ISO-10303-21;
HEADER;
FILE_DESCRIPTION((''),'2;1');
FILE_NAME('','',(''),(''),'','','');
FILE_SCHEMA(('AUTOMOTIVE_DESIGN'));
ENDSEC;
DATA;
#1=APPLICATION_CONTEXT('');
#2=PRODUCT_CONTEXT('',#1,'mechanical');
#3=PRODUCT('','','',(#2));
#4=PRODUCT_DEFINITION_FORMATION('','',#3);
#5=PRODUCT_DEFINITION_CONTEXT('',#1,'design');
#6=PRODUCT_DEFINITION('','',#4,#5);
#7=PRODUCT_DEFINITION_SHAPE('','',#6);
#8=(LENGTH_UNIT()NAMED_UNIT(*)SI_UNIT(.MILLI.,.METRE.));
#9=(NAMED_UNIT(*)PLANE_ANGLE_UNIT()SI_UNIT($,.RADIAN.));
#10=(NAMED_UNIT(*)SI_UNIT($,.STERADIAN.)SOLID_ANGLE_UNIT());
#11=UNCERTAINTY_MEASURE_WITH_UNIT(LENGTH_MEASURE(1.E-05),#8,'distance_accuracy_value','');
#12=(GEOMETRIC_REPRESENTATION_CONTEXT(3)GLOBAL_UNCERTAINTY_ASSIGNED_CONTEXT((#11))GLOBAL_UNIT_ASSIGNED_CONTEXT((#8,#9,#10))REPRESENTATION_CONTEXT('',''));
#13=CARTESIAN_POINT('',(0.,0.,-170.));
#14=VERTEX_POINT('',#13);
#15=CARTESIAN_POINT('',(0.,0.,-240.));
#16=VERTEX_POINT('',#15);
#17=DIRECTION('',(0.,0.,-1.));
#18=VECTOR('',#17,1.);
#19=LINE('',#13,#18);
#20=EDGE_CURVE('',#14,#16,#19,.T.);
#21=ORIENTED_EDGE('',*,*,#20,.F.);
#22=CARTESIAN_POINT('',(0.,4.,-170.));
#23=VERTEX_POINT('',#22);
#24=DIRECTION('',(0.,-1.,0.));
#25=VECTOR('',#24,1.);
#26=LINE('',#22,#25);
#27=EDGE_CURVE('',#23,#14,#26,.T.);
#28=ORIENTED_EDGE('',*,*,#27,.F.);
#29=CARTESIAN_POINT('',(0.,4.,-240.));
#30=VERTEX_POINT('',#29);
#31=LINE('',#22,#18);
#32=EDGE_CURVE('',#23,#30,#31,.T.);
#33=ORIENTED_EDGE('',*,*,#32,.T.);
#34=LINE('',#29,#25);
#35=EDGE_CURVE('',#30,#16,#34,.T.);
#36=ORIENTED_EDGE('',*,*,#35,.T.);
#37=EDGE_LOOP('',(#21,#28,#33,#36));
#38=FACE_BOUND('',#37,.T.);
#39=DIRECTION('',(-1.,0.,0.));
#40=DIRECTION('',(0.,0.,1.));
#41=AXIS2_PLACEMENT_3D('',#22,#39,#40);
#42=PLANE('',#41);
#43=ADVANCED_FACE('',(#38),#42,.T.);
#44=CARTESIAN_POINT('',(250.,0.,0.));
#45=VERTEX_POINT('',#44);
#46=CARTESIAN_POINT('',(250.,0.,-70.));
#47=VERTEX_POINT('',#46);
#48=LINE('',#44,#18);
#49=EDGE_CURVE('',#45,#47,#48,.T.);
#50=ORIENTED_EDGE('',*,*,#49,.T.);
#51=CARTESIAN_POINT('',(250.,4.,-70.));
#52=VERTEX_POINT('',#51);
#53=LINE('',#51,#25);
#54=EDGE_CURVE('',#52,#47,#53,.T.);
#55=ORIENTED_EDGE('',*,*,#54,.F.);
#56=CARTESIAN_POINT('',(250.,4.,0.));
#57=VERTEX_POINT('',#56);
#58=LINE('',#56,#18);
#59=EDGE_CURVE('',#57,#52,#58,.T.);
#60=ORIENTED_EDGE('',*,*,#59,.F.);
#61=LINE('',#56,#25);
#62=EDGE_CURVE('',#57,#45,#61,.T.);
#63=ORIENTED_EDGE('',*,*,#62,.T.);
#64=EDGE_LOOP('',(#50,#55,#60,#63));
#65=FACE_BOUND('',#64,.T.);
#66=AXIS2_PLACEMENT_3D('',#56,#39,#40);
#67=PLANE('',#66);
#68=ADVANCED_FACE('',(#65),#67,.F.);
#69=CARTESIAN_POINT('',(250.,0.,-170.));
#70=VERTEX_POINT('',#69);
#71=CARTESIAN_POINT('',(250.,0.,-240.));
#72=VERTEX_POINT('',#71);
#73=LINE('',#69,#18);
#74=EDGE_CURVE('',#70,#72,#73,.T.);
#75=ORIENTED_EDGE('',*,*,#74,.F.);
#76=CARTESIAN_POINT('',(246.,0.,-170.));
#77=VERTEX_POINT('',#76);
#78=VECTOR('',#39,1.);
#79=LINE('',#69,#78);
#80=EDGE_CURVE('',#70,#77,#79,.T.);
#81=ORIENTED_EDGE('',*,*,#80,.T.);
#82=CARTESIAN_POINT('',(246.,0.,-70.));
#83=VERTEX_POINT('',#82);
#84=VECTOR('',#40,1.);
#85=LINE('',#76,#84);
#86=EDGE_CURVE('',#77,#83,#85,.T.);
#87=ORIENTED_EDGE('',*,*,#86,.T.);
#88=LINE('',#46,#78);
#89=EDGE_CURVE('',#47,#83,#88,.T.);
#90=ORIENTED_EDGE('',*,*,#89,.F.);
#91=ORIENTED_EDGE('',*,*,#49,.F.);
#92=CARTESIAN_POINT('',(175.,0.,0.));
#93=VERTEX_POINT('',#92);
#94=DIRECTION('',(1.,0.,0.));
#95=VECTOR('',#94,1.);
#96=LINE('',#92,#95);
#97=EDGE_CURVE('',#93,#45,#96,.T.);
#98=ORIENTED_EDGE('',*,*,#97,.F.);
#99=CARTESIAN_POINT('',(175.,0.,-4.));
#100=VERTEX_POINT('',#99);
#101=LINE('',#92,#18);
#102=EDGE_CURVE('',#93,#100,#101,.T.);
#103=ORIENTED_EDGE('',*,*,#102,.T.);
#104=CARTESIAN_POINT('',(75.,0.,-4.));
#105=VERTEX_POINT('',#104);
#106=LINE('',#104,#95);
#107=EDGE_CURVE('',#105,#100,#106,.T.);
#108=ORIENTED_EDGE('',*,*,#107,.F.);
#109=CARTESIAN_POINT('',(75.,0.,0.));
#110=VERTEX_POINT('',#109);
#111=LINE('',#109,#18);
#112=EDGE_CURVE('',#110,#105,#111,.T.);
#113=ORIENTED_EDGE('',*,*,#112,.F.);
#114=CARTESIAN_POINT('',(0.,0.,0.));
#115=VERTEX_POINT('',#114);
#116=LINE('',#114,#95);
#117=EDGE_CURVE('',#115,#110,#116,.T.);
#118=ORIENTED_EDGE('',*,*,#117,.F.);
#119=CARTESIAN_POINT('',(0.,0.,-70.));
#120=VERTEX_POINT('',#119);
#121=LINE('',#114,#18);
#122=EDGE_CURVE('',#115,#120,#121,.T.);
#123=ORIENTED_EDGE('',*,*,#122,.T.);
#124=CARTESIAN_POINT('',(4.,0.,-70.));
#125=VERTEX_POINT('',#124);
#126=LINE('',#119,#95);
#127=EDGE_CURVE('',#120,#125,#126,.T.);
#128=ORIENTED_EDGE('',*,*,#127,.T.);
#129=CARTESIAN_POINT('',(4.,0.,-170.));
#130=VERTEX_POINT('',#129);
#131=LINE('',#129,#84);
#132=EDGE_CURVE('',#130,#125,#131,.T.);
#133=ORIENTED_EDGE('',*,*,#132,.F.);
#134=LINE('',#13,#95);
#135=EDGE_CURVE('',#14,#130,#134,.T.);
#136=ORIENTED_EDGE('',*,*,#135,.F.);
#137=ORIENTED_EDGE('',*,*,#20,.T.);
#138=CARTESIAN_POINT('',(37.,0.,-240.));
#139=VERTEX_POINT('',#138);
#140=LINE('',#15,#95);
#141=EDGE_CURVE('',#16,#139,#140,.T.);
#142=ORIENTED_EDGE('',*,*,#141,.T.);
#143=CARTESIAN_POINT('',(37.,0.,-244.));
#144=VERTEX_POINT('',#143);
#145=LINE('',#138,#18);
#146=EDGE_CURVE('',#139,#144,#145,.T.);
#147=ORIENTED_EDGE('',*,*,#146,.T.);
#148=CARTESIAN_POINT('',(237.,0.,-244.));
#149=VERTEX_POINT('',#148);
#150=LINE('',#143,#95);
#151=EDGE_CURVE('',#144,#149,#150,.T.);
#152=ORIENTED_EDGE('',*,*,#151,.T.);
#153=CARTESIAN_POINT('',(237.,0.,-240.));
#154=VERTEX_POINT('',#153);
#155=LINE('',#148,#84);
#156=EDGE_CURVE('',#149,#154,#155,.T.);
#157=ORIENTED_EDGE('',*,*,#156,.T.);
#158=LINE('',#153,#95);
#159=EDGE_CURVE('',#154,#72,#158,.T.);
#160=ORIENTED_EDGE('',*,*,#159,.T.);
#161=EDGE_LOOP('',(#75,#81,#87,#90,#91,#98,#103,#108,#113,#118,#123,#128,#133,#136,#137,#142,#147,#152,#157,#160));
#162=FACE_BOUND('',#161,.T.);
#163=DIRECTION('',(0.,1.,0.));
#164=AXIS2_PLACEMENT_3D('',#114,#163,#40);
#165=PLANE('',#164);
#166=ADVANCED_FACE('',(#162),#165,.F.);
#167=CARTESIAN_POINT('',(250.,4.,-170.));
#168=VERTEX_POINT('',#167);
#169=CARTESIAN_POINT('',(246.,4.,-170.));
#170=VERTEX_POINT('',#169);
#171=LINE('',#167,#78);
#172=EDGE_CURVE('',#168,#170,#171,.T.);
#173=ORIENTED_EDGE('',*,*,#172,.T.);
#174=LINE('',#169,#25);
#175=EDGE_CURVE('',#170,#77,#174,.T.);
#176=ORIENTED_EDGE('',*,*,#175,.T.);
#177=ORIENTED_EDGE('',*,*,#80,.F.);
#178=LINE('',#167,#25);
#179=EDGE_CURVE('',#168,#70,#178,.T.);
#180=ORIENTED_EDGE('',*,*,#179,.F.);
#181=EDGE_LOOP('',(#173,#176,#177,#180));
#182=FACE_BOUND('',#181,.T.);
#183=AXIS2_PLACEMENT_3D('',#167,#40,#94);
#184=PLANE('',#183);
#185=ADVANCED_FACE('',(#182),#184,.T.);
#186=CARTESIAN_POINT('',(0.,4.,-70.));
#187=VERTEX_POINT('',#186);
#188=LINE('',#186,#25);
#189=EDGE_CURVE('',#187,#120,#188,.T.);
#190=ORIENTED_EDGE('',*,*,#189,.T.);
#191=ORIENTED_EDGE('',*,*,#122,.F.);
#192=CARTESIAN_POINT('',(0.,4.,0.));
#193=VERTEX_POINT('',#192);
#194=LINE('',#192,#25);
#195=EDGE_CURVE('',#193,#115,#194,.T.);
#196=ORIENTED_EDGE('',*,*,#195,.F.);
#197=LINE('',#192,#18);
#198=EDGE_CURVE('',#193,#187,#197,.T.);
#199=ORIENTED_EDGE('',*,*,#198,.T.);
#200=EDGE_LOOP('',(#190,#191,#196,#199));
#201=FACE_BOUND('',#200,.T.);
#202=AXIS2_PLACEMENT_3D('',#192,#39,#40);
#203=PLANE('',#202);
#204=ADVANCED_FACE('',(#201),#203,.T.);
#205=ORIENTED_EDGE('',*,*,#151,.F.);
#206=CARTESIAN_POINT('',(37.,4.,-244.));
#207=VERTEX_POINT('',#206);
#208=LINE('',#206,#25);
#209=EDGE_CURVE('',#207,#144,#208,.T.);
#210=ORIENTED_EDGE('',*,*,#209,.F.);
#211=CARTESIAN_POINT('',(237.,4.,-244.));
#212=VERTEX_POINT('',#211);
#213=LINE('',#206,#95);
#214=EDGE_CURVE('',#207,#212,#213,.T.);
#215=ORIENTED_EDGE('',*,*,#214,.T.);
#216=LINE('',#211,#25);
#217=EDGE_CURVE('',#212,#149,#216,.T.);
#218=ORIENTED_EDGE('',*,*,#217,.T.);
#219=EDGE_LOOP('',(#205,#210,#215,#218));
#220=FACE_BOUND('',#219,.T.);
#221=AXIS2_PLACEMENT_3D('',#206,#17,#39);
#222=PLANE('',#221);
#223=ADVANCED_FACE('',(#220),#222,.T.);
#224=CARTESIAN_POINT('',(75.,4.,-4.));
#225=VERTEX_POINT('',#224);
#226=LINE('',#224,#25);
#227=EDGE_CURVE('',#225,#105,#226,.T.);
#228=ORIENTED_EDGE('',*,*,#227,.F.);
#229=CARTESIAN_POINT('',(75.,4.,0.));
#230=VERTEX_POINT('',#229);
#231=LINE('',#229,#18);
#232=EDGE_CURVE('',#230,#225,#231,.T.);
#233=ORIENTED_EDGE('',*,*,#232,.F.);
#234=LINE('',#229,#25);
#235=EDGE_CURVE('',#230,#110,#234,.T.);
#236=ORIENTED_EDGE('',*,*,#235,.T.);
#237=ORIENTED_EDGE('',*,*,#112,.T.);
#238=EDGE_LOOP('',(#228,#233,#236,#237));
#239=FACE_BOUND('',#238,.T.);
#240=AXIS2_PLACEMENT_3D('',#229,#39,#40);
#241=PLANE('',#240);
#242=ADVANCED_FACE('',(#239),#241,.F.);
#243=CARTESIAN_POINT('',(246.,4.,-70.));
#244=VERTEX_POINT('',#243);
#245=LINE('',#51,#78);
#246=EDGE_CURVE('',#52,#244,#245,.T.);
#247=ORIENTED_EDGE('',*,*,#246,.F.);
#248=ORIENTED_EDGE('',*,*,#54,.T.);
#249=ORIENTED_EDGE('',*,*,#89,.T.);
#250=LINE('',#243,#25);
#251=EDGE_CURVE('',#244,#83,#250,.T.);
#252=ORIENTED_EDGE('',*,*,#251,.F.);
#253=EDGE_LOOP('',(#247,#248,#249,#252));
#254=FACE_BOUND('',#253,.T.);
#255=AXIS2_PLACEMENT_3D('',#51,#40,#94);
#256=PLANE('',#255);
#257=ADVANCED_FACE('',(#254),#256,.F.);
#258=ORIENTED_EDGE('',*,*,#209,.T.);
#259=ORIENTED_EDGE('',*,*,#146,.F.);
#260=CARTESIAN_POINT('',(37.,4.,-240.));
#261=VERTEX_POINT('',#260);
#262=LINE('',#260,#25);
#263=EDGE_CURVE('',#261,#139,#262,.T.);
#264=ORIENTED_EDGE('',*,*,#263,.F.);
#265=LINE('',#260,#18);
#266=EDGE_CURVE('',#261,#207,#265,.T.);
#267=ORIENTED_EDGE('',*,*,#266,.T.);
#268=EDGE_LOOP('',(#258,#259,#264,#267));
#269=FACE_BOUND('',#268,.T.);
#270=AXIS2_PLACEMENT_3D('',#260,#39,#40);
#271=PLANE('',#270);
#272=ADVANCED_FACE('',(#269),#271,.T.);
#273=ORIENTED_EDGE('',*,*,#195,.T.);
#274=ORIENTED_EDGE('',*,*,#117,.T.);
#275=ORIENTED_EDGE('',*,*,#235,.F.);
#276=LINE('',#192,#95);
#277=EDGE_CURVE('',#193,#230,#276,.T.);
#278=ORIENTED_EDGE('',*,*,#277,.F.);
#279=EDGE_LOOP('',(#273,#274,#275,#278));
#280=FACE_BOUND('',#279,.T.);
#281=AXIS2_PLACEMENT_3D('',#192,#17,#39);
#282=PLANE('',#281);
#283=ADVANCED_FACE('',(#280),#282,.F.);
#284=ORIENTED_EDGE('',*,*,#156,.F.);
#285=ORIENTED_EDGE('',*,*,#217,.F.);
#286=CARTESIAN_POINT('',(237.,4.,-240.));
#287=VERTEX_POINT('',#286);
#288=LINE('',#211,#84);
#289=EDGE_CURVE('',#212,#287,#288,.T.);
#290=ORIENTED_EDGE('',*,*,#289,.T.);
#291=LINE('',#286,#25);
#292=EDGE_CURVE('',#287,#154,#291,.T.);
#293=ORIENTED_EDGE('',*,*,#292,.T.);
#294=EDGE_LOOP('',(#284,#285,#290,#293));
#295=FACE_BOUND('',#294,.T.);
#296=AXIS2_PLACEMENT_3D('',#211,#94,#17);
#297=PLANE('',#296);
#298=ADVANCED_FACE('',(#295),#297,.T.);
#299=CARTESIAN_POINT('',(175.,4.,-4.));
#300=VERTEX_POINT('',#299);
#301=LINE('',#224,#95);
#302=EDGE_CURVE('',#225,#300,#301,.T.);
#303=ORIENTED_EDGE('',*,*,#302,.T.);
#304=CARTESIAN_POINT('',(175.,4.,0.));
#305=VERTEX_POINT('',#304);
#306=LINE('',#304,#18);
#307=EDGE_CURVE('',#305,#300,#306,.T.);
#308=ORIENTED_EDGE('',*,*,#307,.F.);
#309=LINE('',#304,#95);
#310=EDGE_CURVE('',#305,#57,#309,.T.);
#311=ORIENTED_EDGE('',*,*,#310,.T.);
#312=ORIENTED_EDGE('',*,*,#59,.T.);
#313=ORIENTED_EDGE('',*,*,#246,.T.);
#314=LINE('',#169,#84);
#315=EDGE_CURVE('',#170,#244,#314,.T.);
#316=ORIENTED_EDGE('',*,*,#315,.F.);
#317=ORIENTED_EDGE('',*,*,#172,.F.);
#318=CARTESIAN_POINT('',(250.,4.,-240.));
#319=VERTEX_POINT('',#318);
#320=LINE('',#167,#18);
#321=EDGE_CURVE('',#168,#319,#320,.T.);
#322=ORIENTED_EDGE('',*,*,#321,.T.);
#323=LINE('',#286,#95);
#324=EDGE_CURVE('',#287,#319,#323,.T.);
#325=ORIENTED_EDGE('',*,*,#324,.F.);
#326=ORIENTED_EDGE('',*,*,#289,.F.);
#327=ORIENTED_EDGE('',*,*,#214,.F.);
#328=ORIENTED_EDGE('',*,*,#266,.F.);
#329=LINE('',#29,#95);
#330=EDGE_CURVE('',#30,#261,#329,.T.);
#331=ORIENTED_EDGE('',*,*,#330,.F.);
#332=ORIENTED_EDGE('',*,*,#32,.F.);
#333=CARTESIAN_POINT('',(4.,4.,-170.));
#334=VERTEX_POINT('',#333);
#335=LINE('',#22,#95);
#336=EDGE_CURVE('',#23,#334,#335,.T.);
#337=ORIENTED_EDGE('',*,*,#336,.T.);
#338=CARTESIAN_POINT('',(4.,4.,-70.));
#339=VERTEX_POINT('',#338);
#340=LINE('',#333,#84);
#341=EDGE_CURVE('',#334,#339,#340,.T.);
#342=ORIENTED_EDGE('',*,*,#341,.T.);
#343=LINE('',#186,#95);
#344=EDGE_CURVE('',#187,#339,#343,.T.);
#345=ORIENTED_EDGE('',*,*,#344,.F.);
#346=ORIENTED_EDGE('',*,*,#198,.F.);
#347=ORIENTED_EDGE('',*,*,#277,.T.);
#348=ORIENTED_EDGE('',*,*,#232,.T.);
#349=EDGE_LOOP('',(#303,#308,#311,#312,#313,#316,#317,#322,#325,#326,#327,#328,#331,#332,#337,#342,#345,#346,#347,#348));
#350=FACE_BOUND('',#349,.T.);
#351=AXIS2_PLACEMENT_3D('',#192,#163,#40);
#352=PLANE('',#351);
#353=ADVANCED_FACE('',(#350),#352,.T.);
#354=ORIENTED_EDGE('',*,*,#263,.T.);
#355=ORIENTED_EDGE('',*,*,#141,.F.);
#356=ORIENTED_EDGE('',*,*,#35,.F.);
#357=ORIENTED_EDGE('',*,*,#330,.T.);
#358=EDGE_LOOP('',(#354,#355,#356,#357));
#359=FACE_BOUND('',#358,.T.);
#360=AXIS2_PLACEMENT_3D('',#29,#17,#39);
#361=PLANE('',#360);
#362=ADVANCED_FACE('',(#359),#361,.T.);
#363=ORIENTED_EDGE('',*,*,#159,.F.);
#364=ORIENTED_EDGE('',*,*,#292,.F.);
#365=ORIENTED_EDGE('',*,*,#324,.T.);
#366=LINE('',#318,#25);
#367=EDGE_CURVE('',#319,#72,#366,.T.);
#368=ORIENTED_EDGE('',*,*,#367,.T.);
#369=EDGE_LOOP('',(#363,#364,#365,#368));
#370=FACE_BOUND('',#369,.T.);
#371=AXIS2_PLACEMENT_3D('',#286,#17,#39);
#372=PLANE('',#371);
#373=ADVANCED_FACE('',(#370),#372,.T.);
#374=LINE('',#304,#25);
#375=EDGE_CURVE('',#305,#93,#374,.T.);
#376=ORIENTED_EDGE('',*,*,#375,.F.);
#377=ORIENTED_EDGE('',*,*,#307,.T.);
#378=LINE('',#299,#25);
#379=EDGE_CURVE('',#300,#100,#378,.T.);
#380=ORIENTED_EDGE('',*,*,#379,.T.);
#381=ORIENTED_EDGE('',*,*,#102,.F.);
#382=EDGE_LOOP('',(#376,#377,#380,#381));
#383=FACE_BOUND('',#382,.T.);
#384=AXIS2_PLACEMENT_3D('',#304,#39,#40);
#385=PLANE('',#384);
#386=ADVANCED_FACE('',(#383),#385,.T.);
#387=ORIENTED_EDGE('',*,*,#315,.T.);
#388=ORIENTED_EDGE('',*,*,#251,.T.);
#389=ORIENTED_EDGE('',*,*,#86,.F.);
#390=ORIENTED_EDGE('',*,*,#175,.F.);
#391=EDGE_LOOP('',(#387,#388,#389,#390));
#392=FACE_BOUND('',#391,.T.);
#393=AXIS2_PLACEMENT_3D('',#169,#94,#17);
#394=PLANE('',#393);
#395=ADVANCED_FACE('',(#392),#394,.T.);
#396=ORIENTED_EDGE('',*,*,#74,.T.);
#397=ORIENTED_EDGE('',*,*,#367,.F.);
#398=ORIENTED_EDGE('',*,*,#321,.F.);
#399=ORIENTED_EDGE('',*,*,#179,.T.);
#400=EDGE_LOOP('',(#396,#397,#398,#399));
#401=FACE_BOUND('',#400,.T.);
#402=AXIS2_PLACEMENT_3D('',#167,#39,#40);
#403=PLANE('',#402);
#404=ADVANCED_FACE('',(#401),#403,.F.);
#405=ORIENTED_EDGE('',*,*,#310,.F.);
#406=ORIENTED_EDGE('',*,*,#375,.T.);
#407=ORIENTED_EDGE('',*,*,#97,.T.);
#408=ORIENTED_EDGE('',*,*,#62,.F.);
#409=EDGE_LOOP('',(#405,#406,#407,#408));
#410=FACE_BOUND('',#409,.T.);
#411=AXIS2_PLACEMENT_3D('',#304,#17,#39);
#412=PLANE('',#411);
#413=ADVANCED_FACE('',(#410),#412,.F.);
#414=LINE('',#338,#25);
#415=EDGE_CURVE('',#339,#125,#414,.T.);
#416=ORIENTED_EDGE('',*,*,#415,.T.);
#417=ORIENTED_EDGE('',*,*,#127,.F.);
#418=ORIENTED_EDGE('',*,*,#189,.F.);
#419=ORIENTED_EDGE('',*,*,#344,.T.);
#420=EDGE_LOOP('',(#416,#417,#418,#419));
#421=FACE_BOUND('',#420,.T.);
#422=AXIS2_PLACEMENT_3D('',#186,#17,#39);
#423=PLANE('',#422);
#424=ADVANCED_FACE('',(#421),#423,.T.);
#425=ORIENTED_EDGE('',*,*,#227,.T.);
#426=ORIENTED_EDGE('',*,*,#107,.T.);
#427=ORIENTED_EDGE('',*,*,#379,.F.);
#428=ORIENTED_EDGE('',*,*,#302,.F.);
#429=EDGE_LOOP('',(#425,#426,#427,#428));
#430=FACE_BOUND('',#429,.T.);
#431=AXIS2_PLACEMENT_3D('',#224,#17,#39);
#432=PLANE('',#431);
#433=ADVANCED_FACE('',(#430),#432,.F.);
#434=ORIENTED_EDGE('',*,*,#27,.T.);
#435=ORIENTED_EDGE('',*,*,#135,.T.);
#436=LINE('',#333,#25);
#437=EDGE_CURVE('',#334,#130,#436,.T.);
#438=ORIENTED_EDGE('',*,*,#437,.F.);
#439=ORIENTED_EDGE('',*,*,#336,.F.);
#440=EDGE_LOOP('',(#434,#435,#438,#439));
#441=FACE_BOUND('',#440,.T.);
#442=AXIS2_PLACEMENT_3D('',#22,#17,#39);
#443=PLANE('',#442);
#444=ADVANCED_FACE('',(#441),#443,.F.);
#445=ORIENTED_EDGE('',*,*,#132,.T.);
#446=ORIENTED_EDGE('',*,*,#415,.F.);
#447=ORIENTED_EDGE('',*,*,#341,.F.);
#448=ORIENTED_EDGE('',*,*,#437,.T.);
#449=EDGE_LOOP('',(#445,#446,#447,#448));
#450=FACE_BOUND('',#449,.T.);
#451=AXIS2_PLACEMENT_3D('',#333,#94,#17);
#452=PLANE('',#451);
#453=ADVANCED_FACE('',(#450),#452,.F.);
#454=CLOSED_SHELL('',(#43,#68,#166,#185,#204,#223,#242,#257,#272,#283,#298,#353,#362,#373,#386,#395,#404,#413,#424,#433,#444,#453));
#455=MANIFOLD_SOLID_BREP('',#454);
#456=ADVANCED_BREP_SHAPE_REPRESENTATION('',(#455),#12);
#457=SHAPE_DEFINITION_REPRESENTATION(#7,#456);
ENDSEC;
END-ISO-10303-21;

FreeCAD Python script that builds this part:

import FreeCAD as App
import Part
import Sketcher
from FreeCAD import Vector
Q = App.Units.Quantity

doc = App.newDocument("Part")
body = doc.addObject("PartDesign::Body", "Body")

# Sketch on XZ plane
sketch1 = doc.addObject("Sketcher::SketchObject", "Sketch")
body.addObject(sketch1)
sketch1.AttachmentSupport = (doc.XZ_Plane, [""])
sketch1.MapMode = "FlatFace"
sketch1.addGeometry(Part.LineSegment(Vector(37, -244, 0), Vector(37, -240, 0)), False)
sketch1.addGeometry(Part.LineSegment(Vector(37, -240, 0), Vector(0, -240, 0)), False)
sketch1.addGeometry(Part.LineSegment(Vector(0, -240, 0), Vector(0, -170, 0)), False)
sketch1.addGeometry(Part.LineSegment(Vector(0, -170, 0), Vector(4, -170, 0)), False)
sketch1.addGeometry(Part.LineSegment(Vector(4, -170, 0), Vector(4, -70, 0)), False)
sketch1.addGeometry(Part.LineSegment(Vector(4, -70, 0), Vector(0, -70, 0)), False)
sketch1.addGeometry(Part.LineSegment(Vector(0, -70, 0), Vector(0, 0, 0)), False)
sketch1.addGeometry(Part.LineSegment(Vector(0, 0, 0), Vector(75, 0, 0)), False)
sketch1.addGeometry(Part.LineSegment(Vector(75, 0, 0), Vector(75, -4, 0)), False)
sketch1.addGeometry(Part.LineSegment(Vector(75, -4, 0), Vector(175, -4, 0)), False)
sketch1.addGeometry(Part.LineSegment(Vector(175, -4, 0), Vector(175, 0, 0)), False)
sketch1.addGeometry(Part.LineSegment(Vector(175, 0, 0), Vector(250, 0, 0)), False)
sketch1.addGeometry(Part.LineSegment(Vector(250, 0, 0), Vector(250, -70, 0)), False)
sketch1.addGeometry(Part.LineSegment(Vector(250, -70, 0), Vector(246, -70, 0)), False)
sketch1.addGeometry(Part.LineSegment(Vector(246, -70, 0), Vector(246, -170, 0)), False)
sketch1.addGeometry(Part.LineSegment(Vector(246, -170, 0), Vector(250, -170, 0)), False)
sketch1.addGeometry(Part.LineSegment(Vector(250, -170, 0), Vector(250, -240, 0)), False)
sketch1.addGeometry(Part.LineSegment(Vector(250, -240, 0), Vector(237, -240, 0)), False)
sketch1.addGeometry(Part.LineSegment(Vector(237, -240, 0), Vector(237, -244, 0)), False)
sketch1.addGeometry(Part.LineSegment(Vector(237, -244, 0), Vector(37, -244, 0)), False)
sketch1.addConstraint(Sketcher.Constraint("Coincident", 0, 2, 1, 1))
sketch1.addConstraint(Sketcher.Constraint("Coincident", 1, 2, 2, 1))
sketch1.addConstraint(Sketcher.Constraint("Coincident", 2, 2, 3, 1))
sketch1.addConstraint(Sketcher.Constraint("Coincident", 3, 2, 4, 1))
sketch1.addConstraint(Sketcher.Constraint("Coincident", 4, 2, 5, 1))
sketch1.addConstraint(Sketcher.Constraint("Coincident", 5, 2, 6, 1))
sketch1.addConstraint(Sketcher.Constraint("Coincident", 6, 2, 7, 1))
sketch1.addConstraint(Sketcher.Constraint("Coincident", 7, 2, 8, 1))
sketch1.addConstraint(Sketcher.Constraint("Coincident", 8, 2, 9, 1))
sketch1.addConstraint(Sketcher.Constraint("Coincident", 9, 2, 10, 1))
sketch1.addConstraint(Sketcher.Constraint("Coincident", 10, 2, 11, 1))
sketch1.addConstraint(Sketcher.Constraint("Coincident", 11, 2, 12, 1))
sketch1.addConstraint(Sketcher.Constraint("Coincident", 12, 2, 13, 1))
sketch1.addConstraint(Sketcher.Constraint("Coincident", 13, 2, 14, 1))
sketch1.addConstraint(Sketcher.Constraint("Coincident", 14, 2, 15, 1))
sketch1.addConstraint(Sketcher.Constraint("Coincident", 15, 2, 16, 1))
sketch1.addConstraint(Sketcher.Constraint("Coincident", 16, 2, 17, 1))
sketch1.addConstraint(Sketcher.Constraint("Coincident", 17, 2, 18, 1))
sketch1.addConstraint(Sketcher.Constraint("Coincident", 18, 2, 19, 1))
sketch1.addConstraint(Sketcher.Constraint("Coincident", 19, 2, 0, 1))
sketch1.addConstraint(Sketcher.Constraint("Vertical", 0))
sketch1.addConstraint(Sketcher.Constraint("Horizontal", 1))
sketch1.addConstraint(Sketcher.Constraint("Vertical", 2))
sketch1.addConstraint(Sketcher.Constraint("Horizontal", 3))
sketch1.addConstraint(Sketcher.Constraint("Vertical", 4))
sketch1.addConstraint(Sketcher.Constraint("Horizontal", 5))
sketch1.addConstraint(Sketcher.Constraint("Vertical", 6))
sketch1.addConstraint(Sketcher.Constraint("Horizontal", 7))
sketch1.addConstraint(Sketcher.Constraint("Vertical", 8))
sketch1.addConstraint(Sketcher.Constraint("Horizontal", 9))
sketch1.addConstraint(Sketcher.Constraint("Vertical", 10))
sketch1.addConstraint(Sketcher.Constraint("Horizontal", 11))
sketch1.addConstraint(Sketcher.Constraint("Vertical", 12))
sketch1.addConstraint(Sketcher.Constraint("Horizontal", 13))
sketch1.addConstraint(Sketcher.Constraint("Vertical", 14))
sketch1.addConstraint(Sketcher.Constraint("Horizontal", 15))
sketch1.addConstraint(Sketcher.Constraint("Vertical", 16))
sketch1.addConstraint(Sketcher.Constraint("Horizontal", 17))
sketch1.addConstraint(Sketcher.Constraint("Vertical", 18))
sketch1.addConstraint(Sketcher.Constraint("Horizontal", 19))
sketch1.addConstraint(Sketcher.Constraint("Coincident", 6, 2, -1, 1))
sketch1.addConstraint(Sketcher.Constraint("PointOnObject", 1, 2, -2))
sketch1.addConstraint(Sketcher.Constraint("PointOnObject", 10, 2, -1))
sketch1.addConstraint(Sketcher.Constraint("Horizontal", 5, 2, 12, 2))
sketch1.addConstraint(Sketcher.Constraint("Horizontal", 3, 2, 14, 2))
sketch1.addConstraint(Sketcher.Constraint("Horizontal", 1, 2, 16, 2))
sketch1.addConstraint(Sketcher.Constraint("Vertical", 12, 2, 15, 2))
sketch1.addConstraint(Sketcher.Constraint("Equal", 7, 11))
sketch1.addConstraint(Sketcher.Constraint("Equal", 5, 13))
sketch1.addConstraint(Sketcher.Constraint("Equal", 15, 0))
sketch1.addConstraint(Sketcher.Constraint("Equal", 9, 4))
sketch1.addConstraint(Sketcher.Constraint("Equal", 2, 6))
sketch1.addConstraint(Sketcher.Constraint("Equal", 0, 8))
sketch1.addConstraint(Sketcher.Constraint("DistanceX", 1, 2, 1, 1, Q("37 mm")))
sketch1.addConstraint(Sketcher.Constraint("DistanceX", 3, 1, 3, 2, Q("4 mm")))
sketch1.addConstraint(Sketcher.Constraint("DistanceX", 7, 1, 7, 2, Q("75 mm")))
sketch1.addConstraint(Sketcher.Constraint("DistanceX", 9, 1, 9, 2, Q("100 mm")))
sketch1.addConstraint(Sketcher.Constraint("DistanceX", 17, 2, 17, 1, Q("13 mm")))
sketch1.addConstraint(Sketcher.Constraint("DistanceY", 2, 1, 2, 2, Q("70 mm")))
pad1 = doc.addObject("PartDesign::Pad", "Pad")
body.addObject(pad1)
pad1.Profile = sketch1
pad1.Length = 4
pad1.Reversed = True

doc.recompute()
